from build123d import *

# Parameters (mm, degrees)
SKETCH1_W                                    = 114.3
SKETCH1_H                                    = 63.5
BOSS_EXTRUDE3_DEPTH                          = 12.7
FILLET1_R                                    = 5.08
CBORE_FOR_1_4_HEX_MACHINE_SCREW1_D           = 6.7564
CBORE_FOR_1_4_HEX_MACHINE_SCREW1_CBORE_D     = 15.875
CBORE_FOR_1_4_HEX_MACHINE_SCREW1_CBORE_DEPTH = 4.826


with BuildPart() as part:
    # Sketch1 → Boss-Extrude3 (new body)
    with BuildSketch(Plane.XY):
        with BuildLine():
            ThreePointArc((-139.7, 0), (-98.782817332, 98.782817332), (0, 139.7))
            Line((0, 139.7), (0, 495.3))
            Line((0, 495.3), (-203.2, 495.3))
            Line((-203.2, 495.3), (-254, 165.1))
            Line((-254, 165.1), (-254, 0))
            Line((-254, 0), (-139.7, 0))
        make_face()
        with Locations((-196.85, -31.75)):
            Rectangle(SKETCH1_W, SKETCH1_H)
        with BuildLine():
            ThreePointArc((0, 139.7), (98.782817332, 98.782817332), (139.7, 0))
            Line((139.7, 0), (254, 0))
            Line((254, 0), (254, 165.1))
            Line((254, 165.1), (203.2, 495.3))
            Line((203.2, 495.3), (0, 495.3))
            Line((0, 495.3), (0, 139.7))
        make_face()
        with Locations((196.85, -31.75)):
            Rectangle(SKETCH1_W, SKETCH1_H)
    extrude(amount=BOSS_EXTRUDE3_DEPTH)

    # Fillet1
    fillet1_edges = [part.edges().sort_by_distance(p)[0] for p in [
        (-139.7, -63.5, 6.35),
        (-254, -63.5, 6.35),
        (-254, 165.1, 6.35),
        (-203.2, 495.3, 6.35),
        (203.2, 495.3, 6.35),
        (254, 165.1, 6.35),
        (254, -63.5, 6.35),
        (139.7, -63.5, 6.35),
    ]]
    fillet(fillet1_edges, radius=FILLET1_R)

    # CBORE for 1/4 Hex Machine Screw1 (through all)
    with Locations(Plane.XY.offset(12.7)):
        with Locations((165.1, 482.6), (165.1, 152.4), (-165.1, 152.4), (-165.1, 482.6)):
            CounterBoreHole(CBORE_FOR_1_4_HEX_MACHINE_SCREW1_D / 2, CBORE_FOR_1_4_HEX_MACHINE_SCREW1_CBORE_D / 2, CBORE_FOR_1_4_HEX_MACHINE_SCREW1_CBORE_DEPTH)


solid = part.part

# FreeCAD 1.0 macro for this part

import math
import FreeCAD as App
import Part
import Sketcher
from FreeCAD import Vector
Q = App.Units.Quantity


def edges_at(feature, points):
    """Names of the edges that pass closest to the given points."""
    edges = feature.Shape.Edges
    near = lambda p: min(range(len(edges)), key=lambda i: edges[i].distToShape(Part.Vertex(*p))[0])
    return sorted({f"Edge{near(p) + 1}" for p in points})

doc = App.newDocument("Part")
body = doc.addObject("PartDesign::Body", "Body")

# Sketch on XY plane
sketch1 = body.newObject("Sketcher::SketchObject", "Sketch")
sketch1.AttachmentSupport = (doc.getObject("XY_Plane"), [""])
sketch1.MapMode = "FlatFace"
sketch1.addGeometry([
    Part.ArcOfCircle(Part.Circle(Vector(0, 0, 0), Vector(0, 0, 1), 139.7), math.radians(90), math.radians(180)),  # 0
    Part.ArcOfCircle(Part.Circle(Vector(0, 0, 0), Vector(0, 0, 1), 139.7), math.radians(0), math.radians(90)),  # 1
    Part.LineSegment(Vector(139.7, 0, 0), Vector(139.7, -63.5, 0)),  # 2
    Part.LineSegment(Vector(139.7, -63.5, 0), Vector(254, -63.5, 0)),  # 3
    Part.LineSegment(Vector(254, -63.5, 0), Vector(254, 165.1, 0)),  # 4
    Part.LineSegment(Vector(254, 165.1, 0), Vector(203.2, 495.3, 0)),  # 5
    Part.LineSegment(Vector(203.2, 495.3, 0), Vector(-203.2, 495.3, 0)),  # 6
    Part.LineSegment(Vector(-203.2, 495.3, 0), Vector(-254, 165.1, 0)),  # 7
    Part.LineSegment(Vector(-254, 165.1, 0), Vector(-254, -63.5, 0)),  # 8
    Part.LineSegment(Vector(-254, -63.5, 0), Vector(-139.7, -63.5, 0)),  # 9
    Part.LineSegment(Vector(-139.7, -63.5, 0), Vector(-139.7, 0, 0)),  # 10
], False)
sketch1.addConstraint([
    Sketcher.Constraint("Tangent", 0, 1, 1, 2),
    Sketcher.Constraint("Tangent", 1, 1, 2, 1),
    Sketcher.Constraint("Coincident", 2, 2, 3, 1),
    Sketcher.Constraint("Coincident", 3, 2, 4, 1),
    Sketcher.Constraint("Coincident", 4, 2, 5, 1),
    Sketcher.Constraint("Coincident", 5, 2, 6, 1),
    Sketcher.Constraint("Coincident", 6, 2, 7, 1),
    Sketcher.Constraint("Coincident", 7, 2, 8, 1),
    Sketcher.Constraint("Coincident", 8, 2, 9, 1),
    Sketcher.Constraint("Coincident", 9, 2, 10, 1),
    Sketcher.Constraint("Tangent", 10, 2, 0, 2),
    Sketcher.Constraint("Vertical", 2),
    Sketcher.Constraint("Horizontal", 3),
    Sketcher.Constraint("Vertical", 4),
    Sketcher.Constraint("Horizontal", 6),
    Sketcher.Constraint("Vertical", 8),
    Sketcher.Constraint("Horizontal", 9),
    Sketcher.Constraint("Vertical", 10),
    Sketcher.Constraint("Coincident", 0, 3, -1, 1),
    Sketcher.Constraint("Equal", 0, 1),
    Sketcher.Constraint("Symmetric", 4, 2, 7, 2, -2),
    Sketcher.Constraint("PointOnObject", 0, 1, -2),
    Sketcher.Constraint("Horizontal", 3, 2, 8, 2),
    Sketcher.Constraint("Equal", 5, 7),
    Sketcher.Constraint("Radius", 0, Q("5.5 in")),
    Sketcher.Constraint("DistanceX", 6, 2, 6, 1, Q("16 in")),
    Sketcher.Constraint("DistanceY", 4, 1, 4, 2, Q("9 in")),
    Sketcher.Constraint("DistanceX", 3, 1, 3, 2, Q("4.5 in")),
    Sketcher.Constraint("DistanceY", 2, 2, 2, 1, Q("2.5 in")),
    Sketcher.Constraint("DistanceY", 4, 2, 5, 2, Q("13 in")),
])
pad1 = body.newObject("PartDesign::Pad", "Pad")
pad1.Profile = sketch1
pad1.Length = Q("0.5 in")
doc.recompute()

fillet = body.newObject("PartDesign::Fillet", "Fillet")
fillet.Base = (pad1, edges_at(pad1, [
    (-139.7, -63.5, 6.35),
    (-254, -63.5, 6.35),
    (-254, 165.1, 6.35),
    (-203.2, 495.3, 6.35),
    (203.2, 495.3, 6.35),
    (254, 165.1, 6.35),
    (254, -63.5, 6.35),
    (139.7, -63.5, 6.35),
]))
fillet.Radius = Q("0.2 in")

# Sketch on XY plane
sketch2 = body.newObject("Sketcher::SketchObject", "Sketch001")
sketch2.AttachmentSupport = (doc.getObject("XY_Plane"), [""])
sketch2.MapMode = "FlatFace"
sketch2.AttachmentOffset = App.Placement(Vector(0, 0, 0.5 * 25.4), App.Rotation())
sketch2.addGeometry([
    Part.Circle(Vector(165.1, 482.6, 0), Vector(0, 0, 1), 3.3782),
    Part.Circle(Vector(165.1, 152.4, 0), Vector(0, 0, 1), 3.3782),
    Part.Circle(Vector(-165.1, 152.4, 0), Vector(0, 0, 1), 3.3782),
    Part.Circle(Vector(-165.1, 482.6, 0), Vector(0, 0, 1), 3.3782),
], False)
sketch2.addConstraint([
    Sketcher.Constraint("Equal", 0, 1),
    Sketcher.Constraint("Equal", 1, 2),
    Sketcher.Constraint("Equal", 2, 3),
    Sketcher.Constraint("Symmetric", 1, 3, 2, 3, -2),
    Sketcher.Constraint("Symmetric", 0, 3, 3, 3, -2),
    Sketcher.Constraint("Vertical", 0, 3, 1, 3),
    Sketcher.Constraint("Diameter", 0, Q("0.266 in")),
    Sketcher.Constraint("DistanceY", -1, 1, 0, 3, Q("19 in")),
    Sketcher.Constraint("DistanceY", -1, 1, 1, 3, Q("6 in")),
    Sketcher.Constraint("DistanceX", 2, 3, 1, 3, Q("13 in")),
])
doc.recompute()
hole = body.newObject("PartDesign::Hole", "Hole")
hole.Profile = sketch2
hole.ThreadType = "None"
hole.Diameter = Q("0.266 in")
hole.DepthType = "ThroughAll"
hole.HoleCutType = "Counterbore"
hole.HoleCutDiameter = Q("0.625 in")
hole.HoleCutDepth = Q("0.19 in")

doc.recompute()
